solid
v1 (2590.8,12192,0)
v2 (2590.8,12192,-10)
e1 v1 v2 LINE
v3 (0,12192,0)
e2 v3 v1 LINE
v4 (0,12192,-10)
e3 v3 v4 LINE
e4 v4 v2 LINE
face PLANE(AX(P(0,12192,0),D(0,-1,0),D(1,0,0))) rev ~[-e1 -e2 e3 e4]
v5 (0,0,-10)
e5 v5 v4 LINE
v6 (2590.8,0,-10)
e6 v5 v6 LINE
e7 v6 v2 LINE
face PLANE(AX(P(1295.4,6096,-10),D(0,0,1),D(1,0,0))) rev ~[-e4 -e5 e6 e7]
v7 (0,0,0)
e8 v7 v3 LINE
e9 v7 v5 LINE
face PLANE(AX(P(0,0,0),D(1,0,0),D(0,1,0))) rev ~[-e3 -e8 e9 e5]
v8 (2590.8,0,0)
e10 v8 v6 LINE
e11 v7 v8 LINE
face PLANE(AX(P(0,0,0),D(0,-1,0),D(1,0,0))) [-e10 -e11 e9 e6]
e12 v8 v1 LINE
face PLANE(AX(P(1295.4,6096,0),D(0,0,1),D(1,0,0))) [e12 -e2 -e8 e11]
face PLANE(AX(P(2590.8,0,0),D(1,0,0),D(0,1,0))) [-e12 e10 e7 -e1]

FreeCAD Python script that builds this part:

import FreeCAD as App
import Part
import Sketcher
Q = App.Units.Quantity


def add_polygon(sketch, points):
    """Adds a closed chain of lines whose ends are joined by coincident constraints."""
    first, n = sketch.GeometryCount, len(points)
    for a, b in zip(points, points[1:] + points[:1]):
        sketch.addGeometry(Part.LineSegment(App.Vector(*a, 0), App.Vector(*b, 0)), False)
    for i in range(n):
        sketch.addConstraint(Sketcher.Constraint("Coincident", first + i, 2, first + (i + 1) % n, 1))

doc = App.newDocument("Part")
body = doc.addObject("PartDesign::Body", "Body")

sketch1 = doc.addObject("Sketcher::SketchObject", "Sketch")
body.addObject(sketch1)
sketch1.AttachmentSupport = (doc.XY_Plane, [""])
sketch1.MapMode = "FlatFace"
add_polygon(sketch1, [(0, 12192), (0, 0), (2591, 0), (2591, 12192)])
sketch1.addConstraint(Sketcher.Constraint("Vertical", 0))
sketch1.addConstraint(Sketcher.Constraint("Horizontal", 1))
sketch1.addConstraint(Sketcher.Constraint("Vertical", 2))
sketch1.addConstraint(Sketcher.Constraint("Horizontal", 3))
sketch1.addConstraint(Sketcher.Constraint("Coincident", 0, 2, -1, 1))
sketch1.addConstraint(Sketcher.Constraint("DistanceX", 1, 1, 1, 2, Q("102 in")))
sketch1.addConstraint(Sketcher.Constraint("DistanceY", 0, 2, 0, 1, Q("480 in")))
pad1 = doc.addObject("PartDesign::Pad", "Pad")
body.addObject(pad1)
pad1.Profile = sketch1
pad1.Length = 10
pad1.Reversed = True

doc.recompute()
